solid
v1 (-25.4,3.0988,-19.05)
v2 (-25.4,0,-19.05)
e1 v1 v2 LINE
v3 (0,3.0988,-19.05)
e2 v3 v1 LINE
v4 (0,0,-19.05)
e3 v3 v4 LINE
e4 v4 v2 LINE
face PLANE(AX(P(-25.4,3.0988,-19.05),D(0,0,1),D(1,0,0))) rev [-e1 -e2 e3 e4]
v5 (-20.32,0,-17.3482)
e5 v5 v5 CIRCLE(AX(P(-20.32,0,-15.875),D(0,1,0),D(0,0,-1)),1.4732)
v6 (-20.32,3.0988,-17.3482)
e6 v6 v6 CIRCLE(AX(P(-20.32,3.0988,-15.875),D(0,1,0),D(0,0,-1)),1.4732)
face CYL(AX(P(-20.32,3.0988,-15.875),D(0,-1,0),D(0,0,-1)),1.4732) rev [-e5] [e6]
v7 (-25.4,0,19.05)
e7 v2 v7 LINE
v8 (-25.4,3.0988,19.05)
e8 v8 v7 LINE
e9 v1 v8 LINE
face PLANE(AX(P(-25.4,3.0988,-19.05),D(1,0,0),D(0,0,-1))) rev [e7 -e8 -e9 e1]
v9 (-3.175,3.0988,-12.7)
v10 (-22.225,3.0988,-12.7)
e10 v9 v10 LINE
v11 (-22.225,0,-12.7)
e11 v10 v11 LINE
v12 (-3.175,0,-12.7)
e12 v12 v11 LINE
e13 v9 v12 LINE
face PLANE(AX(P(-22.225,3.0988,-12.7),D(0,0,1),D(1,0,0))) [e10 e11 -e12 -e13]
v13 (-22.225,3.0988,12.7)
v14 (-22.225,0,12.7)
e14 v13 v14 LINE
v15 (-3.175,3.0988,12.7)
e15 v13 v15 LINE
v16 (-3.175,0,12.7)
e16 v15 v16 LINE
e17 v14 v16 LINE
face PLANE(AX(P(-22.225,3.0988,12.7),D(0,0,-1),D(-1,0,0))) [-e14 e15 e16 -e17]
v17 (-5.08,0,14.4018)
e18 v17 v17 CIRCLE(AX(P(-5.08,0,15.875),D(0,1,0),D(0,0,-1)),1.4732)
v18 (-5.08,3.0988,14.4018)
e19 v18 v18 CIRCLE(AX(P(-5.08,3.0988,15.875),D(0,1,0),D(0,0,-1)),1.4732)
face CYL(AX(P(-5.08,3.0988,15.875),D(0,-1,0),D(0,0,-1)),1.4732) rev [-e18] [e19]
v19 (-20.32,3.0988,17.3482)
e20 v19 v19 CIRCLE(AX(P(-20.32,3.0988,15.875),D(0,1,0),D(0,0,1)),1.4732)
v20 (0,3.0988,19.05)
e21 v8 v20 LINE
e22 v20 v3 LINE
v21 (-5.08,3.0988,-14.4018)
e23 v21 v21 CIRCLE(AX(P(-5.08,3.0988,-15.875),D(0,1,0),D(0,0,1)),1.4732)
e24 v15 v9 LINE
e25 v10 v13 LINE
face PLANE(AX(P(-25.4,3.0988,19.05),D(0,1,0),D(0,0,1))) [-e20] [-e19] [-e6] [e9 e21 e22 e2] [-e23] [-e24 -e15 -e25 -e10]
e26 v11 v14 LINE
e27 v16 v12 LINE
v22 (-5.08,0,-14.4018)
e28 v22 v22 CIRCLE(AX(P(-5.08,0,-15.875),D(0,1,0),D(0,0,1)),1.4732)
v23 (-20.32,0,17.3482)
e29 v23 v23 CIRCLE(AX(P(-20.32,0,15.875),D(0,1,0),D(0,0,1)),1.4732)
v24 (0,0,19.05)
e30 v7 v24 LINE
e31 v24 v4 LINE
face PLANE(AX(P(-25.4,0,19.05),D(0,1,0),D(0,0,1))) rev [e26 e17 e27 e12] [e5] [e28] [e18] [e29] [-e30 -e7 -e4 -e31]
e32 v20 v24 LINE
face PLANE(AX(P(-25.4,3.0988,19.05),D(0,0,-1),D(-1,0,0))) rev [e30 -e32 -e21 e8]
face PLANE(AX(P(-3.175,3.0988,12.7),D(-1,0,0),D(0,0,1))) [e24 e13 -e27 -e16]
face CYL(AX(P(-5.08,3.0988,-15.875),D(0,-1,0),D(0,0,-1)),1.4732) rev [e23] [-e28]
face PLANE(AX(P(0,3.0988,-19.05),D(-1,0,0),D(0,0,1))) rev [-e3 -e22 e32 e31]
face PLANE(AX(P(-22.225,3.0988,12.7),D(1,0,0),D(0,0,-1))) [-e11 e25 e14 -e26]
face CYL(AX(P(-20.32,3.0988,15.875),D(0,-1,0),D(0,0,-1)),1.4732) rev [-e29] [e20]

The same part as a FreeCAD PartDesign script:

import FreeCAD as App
import Part
import Sketcher
Q = App.Units.Quantity


def add_polygon(sketch, points):
    """Adds a closed chain of lines whose ends are joined by coincident constraints."""
    first, n = sketch.GeometryCount, len(points)
    for a, b in zip(points, points[1:] + points[:1]):
        sketch.addGeometry(Part.LineSegment(App.Vector(*a, 0), App.Vector(*b, 0)), False)
    for i in range(n):
        sketch.addConstraint(Sketcher.Constraint("Coincident", first + i, 2, first + (i + 1) % n, 1))

doc = App.newDocument("Part")
body = doc.addObject("PartDesign::Body", "Body")

# Sketch on XZ plane
sketch1 = body.newObject("Sketcher::SketchObject", "Sketch")
sketch1.AttachmentSupport = (doc.getObject("XZ_Plane"), [""])
sketch1.MapMode = "FlatFace"
add_polygon(sketch1, [(-25.4, -19.1), (-25.4, 19.1), (0, 19.1), (0, -19.1)])  # lines 0-3
sketch1.addGeometry(Part.Circle(App.Vector(-20.3, 15.9, 0), App.Vector(0, 0, 1), 1.5), False)  # 4
sketch1.addGeometry(Part.Circle(App.Vector(-5.1, 15.9, 0), App.Vector(0, 0, 1), 1.5), False)  # 5
sketch1.addGeometry(Part.Circle(App.Vector(-20.3, -15.9, 0), App.Vector(0, 0, 1), 1.5), False)  # 6
add_polygon(sketch1, [(-3.2, 12.7), (-22.2, 12.7), (-22.2, -12.7), (-3.2, -12.7)])  # lines 7-10
sketch1.addGeometry(Part.Circle(App.Vector(-5.1, -15.9, 0), App.Vector(0, 0, 1), 1.5), False)  # 11
sketch1.addConstraint([
    Sketcher.Constraint("Vertical", 0),
    Sketcher.Constraint("Horizontal", 1),
    Sketcher.Constraint("Vertical", 2),
    Sketcher.Constraint("Horizontal", 3),
    Sketcher.Constraint("Horizontal", 7),
    Sketcher.Constraint("Vertical", 8),
    Sketcher.Constraint("Horizontal", 9),
    Sketcher.Constraint("Vertical", 10),
    Sketcher.Constraint("Equal", 4, 5),
    Sketcher.Constraint("Equal", 5, 6),
    Sketcher.Constraint("Equal", 6, 11),
    Sketcher.Constraint("Symmetric", 1, 2, 2, 2, -1, 1),
    Sketcher.Constraint("Symmetric", 4, 3, 6, 3, -1),
    Sketcher.Constraint("Symmetric", 5, 3, 11, 3, -1),
    Sketcher.Constraint("Horizontal", 4, 3, 5, 3),
    Sketcher.Constraint("Equal", 3, 8),
    Sketcher.Constraint("DistanceX", 1, 1, 1, 2, Q("1 in")),
    Sketcher.Constraint("Diameter", 4, Q("0.116 in")),
    Sketcher.Constraint("DistanceY", 0, 1, 0, 2, Q("1.5 in")),
    Sketcher.Constraint("DistanceX", 7, 2, 7, 1, Q("0.75 in")),
    Sketcher.Constraint("DistanceX", 4, 3, -1, 1, Q("0.8 in")),
    Sketcher.Constraint("DistanceX", 5, 3, -1, 1, Q("0.2 in")),
    Sketcher.Constraint("DistanceY", -1, 1, 7, 2, Q("0.5 in")),
    Sketcher.Constraint("DistanceY", 6, 3, 4, 3, Q("1.25 in")),
    Sketcher.Constraint("DistanceX", 7, 2, -1, 1, Q("0.875 in")),
])
pad1 = body.newObject("PartDesign::Pad", "Pad")
pad1.Profile = sketch1
pad1.Length = Q("0.122 in")
pad1.Reversed = True

doc.recompute()
